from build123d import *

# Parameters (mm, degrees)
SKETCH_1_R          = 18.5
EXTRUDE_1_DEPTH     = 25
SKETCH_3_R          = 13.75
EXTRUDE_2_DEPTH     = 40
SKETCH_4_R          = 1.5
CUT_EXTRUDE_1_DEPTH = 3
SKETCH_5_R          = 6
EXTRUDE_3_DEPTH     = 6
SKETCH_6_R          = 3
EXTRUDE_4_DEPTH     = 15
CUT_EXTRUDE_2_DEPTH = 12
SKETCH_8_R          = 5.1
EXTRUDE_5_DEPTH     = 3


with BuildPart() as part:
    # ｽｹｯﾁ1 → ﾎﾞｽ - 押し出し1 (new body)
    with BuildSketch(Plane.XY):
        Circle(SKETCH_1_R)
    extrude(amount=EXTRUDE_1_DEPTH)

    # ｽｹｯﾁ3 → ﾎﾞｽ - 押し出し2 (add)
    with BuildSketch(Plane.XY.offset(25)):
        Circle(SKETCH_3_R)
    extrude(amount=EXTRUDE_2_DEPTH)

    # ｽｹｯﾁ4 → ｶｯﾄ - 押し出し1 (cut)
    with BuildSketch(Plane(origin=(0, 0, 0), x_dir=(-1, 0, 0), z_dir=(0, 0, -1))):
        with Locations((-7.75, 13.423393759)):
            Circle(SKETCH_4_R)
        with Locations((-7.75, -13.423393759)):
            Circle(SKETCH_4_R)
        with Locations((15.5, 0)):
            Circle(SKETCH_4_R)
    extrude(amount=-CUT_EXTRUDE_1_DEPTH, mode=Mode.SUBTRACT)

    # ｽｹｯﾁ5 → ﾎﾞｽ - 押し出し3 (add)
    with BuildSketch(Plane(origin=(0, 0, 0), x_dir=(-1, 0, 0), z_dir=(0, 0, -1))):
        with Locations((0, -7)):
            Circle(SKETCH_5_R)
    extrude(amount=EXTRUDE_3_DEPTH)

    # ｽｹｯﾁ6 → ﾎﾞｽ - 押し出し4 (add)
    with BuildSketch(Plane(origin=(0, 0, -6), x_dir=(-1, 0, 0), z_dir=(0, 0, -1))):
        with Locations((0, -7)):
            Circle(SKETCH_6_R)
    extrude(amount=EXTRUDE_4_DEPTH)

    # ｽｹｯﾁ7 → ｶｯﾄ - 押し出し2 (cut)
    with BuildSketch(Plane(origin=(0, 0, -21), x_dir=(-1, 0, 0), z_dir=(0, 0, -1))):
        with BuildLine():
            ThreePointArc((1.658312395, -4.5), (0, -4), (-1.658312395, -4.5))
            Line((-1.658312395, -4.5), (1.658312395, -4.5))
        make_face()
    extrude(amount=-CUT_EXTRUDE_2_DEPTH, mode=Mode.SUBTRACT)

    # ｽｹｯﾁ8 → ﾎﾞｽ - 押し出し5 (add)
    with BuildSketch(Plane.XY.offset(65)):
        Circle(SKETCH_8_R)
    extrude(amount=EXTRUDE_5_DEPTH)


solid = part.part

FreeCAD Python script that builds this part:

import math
import FreeCAD as App
import Part
import Sketcher
from FreeCAD import Vector
Q = App.Units.Quantity

doc = App.newDocument("Part")
body = doc.addObject("PartDesign::Body", "Body")

# Sketch on XY plane
sketch1 = body.newObject("Sketcher::SketchObject", "Sketch")
sketch1.AttachmentSupport = (doc.getObject("XY_Plane"), [""])
sketch1.MapMode = "FlatFace"
sketch1.addGeometry(Part.Circle(Vector(0, 0, 0), Vector(0, 0, 1), 18), False)
sketch1.addConstraint([
    Sketcher.Constraint("Coincident", 0, 3, -1, 1),
    Sketcher.Constraint("Diameter", 0, Q("37 mm")),
])
pad1 = body.newObject("PartDesign::Pad", "Pad")
pad1.Profile = sketch1
pad1.Length = 25

# Sketch on XY plane
sketch2 = body.newObject("Sketcher::SketchObject", "Sketch001")
sketch2.AttachmentSupport = (doc.getObject("XY_Plane"), [""])
sketch2.MapMode = "FlatFace"
sketch2.AttachmentOffset = App.Placement(Vector(0, 0, 25), App.Rotation())
sketch2.addGeometry(Part.Circle(Vector(0, 0, 0), Vector(0, 0, 1), 14), False)
sketch2.addConstraint([
    Sketcher.Constraint("Coincident", 0, 3, -1, 1),
    Sketcher.Constraint("Diameter", 0, Q("27.5 mm")),
])
pad2 = body.newObject("PartDesign::Pad", "Pad001")
pad2.Profile = sketch2
pad2.Length = 40

# Sketch on XY plane
sketch3 = body.newObject("Sketcher::SketchObject", "Sketch002")
sketch3.AttachmentSupport = (doc.getObject("XY_Plane"), [""])
sketch3.MapMode = "FlatFace"
sketch3.addGeometry([
    Part.Circle(Vector(7.8, 13.4, 0), Vector(0, 0, 1), 1.5),
    Part.Circle(Vector(7.8, -13.4, 0), Vector(0, 0, 1), 1.5),
    Part.Circle(Vector(-15.5, 0, 0), Vector(0, 0, 1), 1.5),
], False)
sketch3.addConstraint([
    Sketcher.Constraint("Equal", 0, 1),
    Sketcher.Constraint("Equal", 1, 2),
    Sketcher.Constraint("Symmetric", 0, 3, 1, 3, -1),
    Sketcher.Constraint("PointOnObject", 2, 3, -1),
    Sketcher.Constraint("Diameter", 0, Q("3 mm")),
    Sketcher.Constraint("DistanceX", 2, 3, -1, 1, Q("15.5 mm")),
    Sketcher.Constraint("DistanceX", -1, 1, 0, 3, Q("7.75 mm")),
    Sketcher.Constraint("DistanceY", -1, 1, 0, 3, Q("13.423394 mm")),
])
pocket1 = body.newObject("PartDesign::Pocket", "Pocket")
pocket1.Profile = sketch3
pocket1.Length = 3
pocket1.Reversed = True

# Sketch on XY plane
sketch4 = body.newObject("Sketcher::SketchObject", "Sketch003")
sketch4.AttachmentSupport = (doc.getObject("XY_Plane"), [""])
sketch4.MapMode = "FlatFace"
sketch4.addGeometry(Part.Circle(Vector(0, -7, 0), Vector(0, 0, 1), 6), False)
sketch4.addConstraint([
    Sketcher.Constraint("PointOnObject", 0, 3, -2),
    Sketcher.Constraint("Diameter", 0, Q("12 mm")),
    Sketcher.Constraint("DistanceY", 0, 3, -1, 1, Q("7 mm")),
])
pad3 = body.newObject("PartDesign::Pad", "Pad002")
pad3.Profile = sketch4
pad3.Length = 6
pad3.Reversed = True

# Sketch on XY plane
sketch5 = body.newObject("Sketcher::SketchObject", "Sketch004")
sketch5.AttachmentSupport = (doc.getObject("XY_Plane"), [""])
sketch5.MapMode = "FlatFace"
sketch5.AttachmentOffset = App.Placement(Vector(0, 0, -6), App.Rotation())
sketch5.addGeometry(Part.Circle(Vector(0, -7, 0), Vector(0, 0, 1), 3), False)
sketch5.addConstraint([
    Sketcher.Constraint("PointOnObject", 0, 3, -2),
    Sketcher.Constraint("Diameter", 0, Q("6 mm")),
    Sketcher.Constraint("DistanceY", 0, 3, -1, 1, Q("7 mm")),
])
pad4 = body.newObject("PartDesign::Pad", "Pad003")
pad4.Profile = sketch5
pad4.Length = 15
pad4.Reversed = True

# Sketch on XY plane
sketch6 = body.newObject("Sketcher::SketchObject", "Sketch005")
sketch6.AttachmentSupport = (doc.getObject("XY_Plane"), [""])
sketch6.MapMode = "FlatFace"
sketch6.AttachmentOffset = App.Placement(Vector(0, 0, -21), App.Rotation())
sketch6.addGeometry([
    Part.ArcOfCircle(Part.Circle(Vector(0, -7, 0), Vector(0, 0, 1), 3), math.radians(56), math.radians(124)),
    Part.LineSegment(Vector(1.7, -4.5, 0), Vector(-1.7, -4.5, 0)),
], False)
sketch6.addConstraint([
    Sketcher.Constraint("Coincident", 0, 1, 1, 1),
    Sketcher.Constraint("Coincident", 1, 2, 0, 2),
    Sketcher.Constraint("Horizontal", 1),
    Sketcher.Constraint("PointOnObject", 0, 3, -2),
    Sketcher.Constraint("Radius", 0, Q("3 mm")),
    Sketcher.Constraint("DistanceY", 0, 3, -1, 1, Q("7 mm")),
    Sketcher.Constraint("DistanceY", 0, 1, -1, 1, Q("4.5 mm")),
])
pocket2 = body.newObject("PartDesign::Pocket", "Pocket001")
pocket2.Profile = sketch6
pocket2.Length = 12
pocket2.Reversed = True

# Sketch on XY plane
sketch7 = body.newObject("Sketcher::SketchObject", "Sketch006")
sketch7.AttachmentSupport = (doc.getObject("XY_Plane"), [""])
sketch7.MapMode = "FlatFace"
sketch7.AttachmentOffset = App.Placement(Vector(0, 0, 65), App.Rotation())
sketch7.addGeometry(Part.Circle(Vector(0, 0, 0), Vector(0, 0, 1), 5), False)
sketch7.addConstraint([
    Sketcher.Constraint("Coincident", 0, 3, -1, 1),
    Sketcher.Constraint("Diameter", 0, Q("10.2 mm")),
])
pad5 = body.newObject("PartDesign::Pad", "Pad004")
pad5.Profile = sketch7
pad5.Length = 3

doc.recompute()
